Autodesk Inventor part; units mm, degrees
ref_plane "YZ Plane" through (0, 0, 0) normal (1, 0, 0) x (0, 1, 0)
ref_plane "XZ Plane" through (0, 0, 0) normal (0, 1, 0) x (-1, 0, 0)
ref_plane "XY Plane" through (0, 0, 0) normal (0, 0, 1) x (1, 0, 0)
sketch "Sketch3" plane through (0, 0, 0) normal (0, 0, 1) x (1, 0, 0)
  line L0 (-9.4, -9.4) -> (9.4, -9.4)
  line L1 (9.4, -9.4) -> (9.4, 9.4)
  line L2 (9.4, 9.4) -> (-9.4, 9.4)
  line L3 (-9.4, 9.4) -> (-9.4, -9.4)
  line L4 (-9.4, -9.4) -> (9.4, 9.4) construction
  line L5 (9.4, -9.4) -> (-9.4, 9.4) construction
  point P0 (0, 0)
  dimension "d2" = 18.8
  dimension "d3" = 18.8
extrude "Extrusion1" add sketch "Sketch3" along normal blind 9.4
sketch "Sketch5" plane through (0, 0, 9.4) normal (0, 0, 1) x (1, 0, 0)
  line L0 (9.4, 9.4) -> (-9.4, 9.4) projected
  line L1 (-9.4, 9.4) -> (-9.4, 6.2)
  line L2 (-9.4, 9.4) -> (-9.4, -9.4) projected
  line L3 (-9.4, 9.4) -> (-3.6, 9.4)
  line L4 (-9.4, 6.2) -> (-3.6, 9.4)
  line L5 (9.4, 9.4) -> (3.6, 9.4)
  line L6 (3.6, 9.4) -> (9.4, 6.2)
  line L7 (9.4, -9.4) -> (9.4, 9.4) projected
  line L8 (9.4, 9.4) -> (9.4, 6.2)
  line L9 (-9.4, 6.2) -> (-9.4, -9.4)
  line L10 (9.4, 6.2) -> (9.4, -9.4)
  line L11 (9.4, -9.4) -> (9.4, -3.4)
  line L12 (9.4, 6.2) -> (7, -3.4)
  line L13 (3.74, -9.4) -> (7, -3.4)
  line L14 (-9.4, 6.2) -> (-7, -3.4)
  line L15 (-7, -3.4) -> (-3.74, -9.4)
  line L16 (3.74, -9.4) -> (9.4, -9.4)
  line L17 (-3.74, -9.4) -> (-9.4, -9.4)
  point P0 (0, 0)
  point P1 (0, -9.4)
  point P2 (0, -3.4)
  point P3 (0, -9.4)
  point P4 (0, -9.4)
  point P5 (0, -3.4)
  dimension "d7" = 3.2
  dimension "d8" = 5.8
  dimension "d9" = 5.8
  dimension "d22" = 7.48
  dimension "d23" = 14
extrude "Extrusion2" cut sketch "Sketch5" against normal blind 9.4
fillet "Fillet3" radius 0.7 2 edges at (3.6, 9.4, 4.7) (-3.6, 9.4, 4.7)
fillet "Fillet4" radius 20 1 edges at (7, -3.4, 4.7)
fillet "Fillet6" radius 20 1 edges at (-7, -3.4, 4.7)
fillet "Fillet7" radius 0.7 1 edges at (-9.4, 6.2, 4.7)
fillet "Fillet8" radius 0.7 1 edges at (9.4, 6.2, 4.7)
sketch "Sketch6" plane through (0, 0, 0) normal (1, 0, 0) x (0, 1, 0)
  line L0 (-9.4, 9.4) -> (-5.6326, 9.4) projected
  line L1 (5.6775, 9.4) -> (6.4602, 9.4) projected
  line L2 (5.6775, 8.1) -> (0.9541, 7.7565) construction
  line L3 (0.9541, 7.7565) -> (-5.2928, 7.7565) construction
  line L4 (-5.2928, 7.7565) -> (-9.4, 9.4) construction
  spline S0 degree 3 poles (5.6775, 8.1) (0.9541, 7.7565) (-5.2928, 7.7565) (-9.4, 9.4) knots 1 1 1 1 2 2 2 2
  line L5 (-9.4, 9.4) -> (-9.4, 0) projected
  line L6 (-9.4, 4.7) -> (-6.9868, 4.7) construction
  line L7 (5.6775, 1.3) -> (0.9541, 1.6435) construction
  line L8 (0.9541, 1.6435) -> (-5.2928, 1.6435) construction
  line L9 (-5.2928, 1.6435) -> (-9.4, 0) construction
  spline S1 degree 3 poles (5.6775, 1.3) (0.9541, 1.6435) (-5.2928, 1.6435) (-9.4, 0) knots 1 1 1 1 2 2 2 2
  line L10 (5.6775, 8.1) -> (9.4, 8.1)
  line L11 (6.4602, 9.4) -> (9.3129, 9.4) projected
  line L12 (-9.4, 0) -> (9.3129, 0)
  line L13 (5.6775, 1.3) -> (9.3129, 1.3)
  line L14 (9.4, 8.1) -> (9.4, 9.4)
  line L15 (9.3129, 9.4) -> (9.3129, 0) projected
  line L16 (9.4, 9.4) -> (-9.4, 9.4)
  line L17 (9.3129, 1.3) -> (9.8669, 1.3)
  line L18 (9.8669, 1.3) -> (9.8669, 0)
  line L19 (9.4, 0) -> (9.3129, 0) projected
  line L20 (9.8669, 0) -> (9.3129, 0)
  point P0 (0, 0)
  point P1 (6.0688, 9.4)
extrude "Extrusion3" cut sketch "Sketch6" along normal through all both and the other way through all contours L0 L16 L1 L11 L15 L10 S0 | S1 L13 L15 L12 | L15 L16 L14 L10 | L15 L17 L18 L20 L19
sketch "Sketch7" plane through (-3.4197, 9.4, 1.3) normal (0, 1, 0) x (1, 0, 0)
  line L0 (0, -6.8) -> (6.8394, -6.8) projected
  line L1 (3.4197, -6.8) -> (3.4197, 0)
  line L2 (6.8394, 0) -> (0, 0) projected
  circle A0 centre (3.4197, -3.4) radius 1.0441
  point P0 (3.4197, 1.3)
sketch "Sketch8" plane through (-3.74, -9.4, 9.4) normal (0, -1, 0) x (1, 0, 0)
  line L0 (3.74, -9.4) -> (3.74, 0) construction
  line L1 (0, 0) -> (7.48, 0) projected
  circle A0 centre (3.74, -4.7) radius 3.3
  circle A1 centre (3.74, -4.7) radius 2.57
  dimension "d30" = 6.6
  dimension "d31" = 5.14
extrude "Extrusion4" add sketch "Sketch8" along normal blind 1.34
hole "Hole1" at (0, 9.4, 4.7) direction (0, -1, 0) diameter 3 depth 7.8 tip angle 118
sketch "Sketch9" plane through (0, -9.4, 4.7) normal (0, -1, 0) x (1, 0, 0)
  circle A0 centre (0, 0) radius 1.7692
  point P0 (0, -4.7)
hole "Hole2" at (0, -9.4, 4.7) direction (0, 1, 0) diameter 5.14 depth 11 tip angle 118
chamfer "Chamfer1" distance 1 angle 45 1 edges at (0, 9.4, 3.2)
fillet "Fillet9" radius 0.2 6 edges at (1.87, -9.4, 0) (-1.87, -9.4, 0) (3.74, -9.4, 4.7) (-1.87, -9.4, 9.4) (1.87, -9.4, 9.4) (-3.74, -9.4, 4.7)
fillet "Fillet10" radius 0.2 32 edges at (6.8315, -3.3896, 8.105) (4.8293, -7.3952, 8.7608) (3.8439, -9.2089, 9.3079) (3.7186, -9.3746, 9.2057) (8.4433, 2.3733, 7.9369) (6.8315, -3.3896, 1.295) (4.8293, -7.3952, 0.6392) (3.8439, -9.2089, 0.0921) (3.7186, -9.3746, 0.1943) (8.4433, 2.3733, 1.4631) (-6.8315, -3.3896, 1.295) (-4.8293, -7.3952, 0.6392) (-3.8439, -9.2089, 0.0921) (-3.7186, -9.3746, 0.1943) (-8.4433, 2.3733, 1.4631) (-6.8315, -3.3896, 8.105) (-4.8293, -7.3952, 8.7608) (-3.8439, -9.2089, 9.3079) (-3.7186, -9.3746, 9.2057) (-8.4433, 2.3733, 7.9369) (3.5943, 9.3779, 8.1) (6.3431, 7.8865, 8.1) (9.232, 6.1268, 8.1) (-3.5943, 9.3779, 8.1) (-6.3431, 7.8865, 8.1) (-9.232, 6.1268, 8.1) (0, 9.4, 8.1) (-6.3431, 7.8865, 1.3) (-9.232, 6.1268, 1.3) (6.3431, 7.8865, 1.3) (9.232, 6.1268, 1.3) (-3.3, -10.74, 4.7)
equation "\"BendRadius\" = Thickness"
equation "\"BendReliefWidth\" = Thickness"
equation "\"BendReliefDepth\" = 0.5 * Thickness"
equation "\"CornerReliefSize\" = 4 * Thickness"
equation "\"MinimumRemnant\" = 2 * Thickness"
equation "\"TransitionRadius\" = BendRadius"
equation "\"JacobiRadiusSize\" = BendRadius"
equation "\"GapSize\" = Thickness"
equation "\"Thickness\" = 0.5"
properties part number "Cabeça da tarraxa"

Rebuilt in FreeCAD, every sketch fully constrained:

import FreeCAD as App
import Part
import Sketcher
from FreeCAD import Vector


def edges_at(feature, points):
    """Names of the edges that pass closest to the given points."""
    edges = feature.Shape.Edges
    near = lambda p: min(range(len(edges)), key=lambda i: edges[i].distToShape(Part.Vertex(*p))[0])
    return sorted({f"Edge{near(p) + 1}" for p in points})


def add_polygon(sketch, points):
    """Adds a closed chain of lines whose ends are joined by coincident constraints."""
    first, n = sketch.GeometryCount, len(points)
    for a, b in zip(points, points[1:] + points[:1]):
        sketch.addGeometry(Part.LineSegment(App.Vector(*a, 0), App.Vector(*b, 0)), False)
    for i in range(n):
        sketch.addConstraint(Sketcher.Constraint("Coincident", first + i, 2, first + (i + 1) % n, 1))

doc = App.newDocument("Part")
body = doc.addObject("PartDesign::Body", "Body")

# Sketch on XY plane
sketch1 = body.newObject("Sketcher::SketchObject", "Sketch")
sketch1.AttachmentSupport = (doc.getObject("XY_Plane"), [""])
sketch1.MapMode = "FlatFace"
add_polygon(sketch1, [(-9, 9), (-9, -9), (9, -9), (9, 9)])  # lines 0-3
sketch1.addConstraint(Sketcher.Constraint("Vertical", 0))
sketch1.addConstraint(Sketcher.Constraint("Horizontal", 1))
sketch1.addConstraint(Sketcher.Constraint("Vertical", 2))
sketch1.addConstraint(Sketcher.Constraint("Horizontal", 3))
sketch1.addConstraint(Sketcher.Constraint("Symmetric", 0, 2, 2, 2, -1, 1))
sketch1.addConstraint(Sketcher.Constraint("Equal", 3, 0))
sketch1.addConstraint(Sketcher.Constraint("DistanceX", 1, 1, 1, 2, 18.8))
pad1 = body.newObject("PartDesign::Pad", "Pad")
pad1.Profile = sketch1
pad1.Length = 9.4

# Sketch on XY plane
sketch2 = body.newObject("Sketcher::SketchObject", "Sketch001")
sketch2.AttachmentSupport = (doc.getObject("XY_Plane"), [""])
sketch2.MapMode = "FlatFace"
sketch2.AttachmentOffset = App.Placement(Vector(0, 0, 9.4), App.Rotation())
add_polygon(sketch2, [(9.4, 6.2), (9.4, 9.4), (3.6, 9.4)])  # lines 0-2
add_polygon(sketch2, [(9.4, -9.4), (9.4, 6.2), (7, -3.4), (3.7, -9.4)])  # lines 3-6
add_polygon(sketch2, [(-7, -3.4), (-9.4, 6.2), (-9.4, -9.4), (-3.7, -9.4)])  # lines 7-10
add_polygon(sketch2, [(-9.4, 6.2), (-3.6, 9.4), (-9.4, 9.4)])  # lines 11-13
sketch2.addConstraint(Sketcher.Constraint("Vertical", 0))
sketch2.addConstraint(Sketcher.Constraint("Horizontal", 1))
sketch2.addConstraint(Sketcher.Constraint("Vertical", 3))
sketch2.addConstraint(Sketcher.Constraint("Horizontal", 6))
sketch2.addConstraint(Sketcher.Constraint("Vertical", 8))
sketch2.addConstraint(Sketcher.Constraint("Horizontal", 9))
sketch2.addConstraint(Sketcher.Constraint("Horizontal", 12))
sketch2.addConstraint(Sketcher.Constraint("Vertical", 13))
sketch2.addConstraint(Sketcher.Constraint("Coincident", 3, 2, 2, 2))
sketch2.addConstraint(Sketcher.Constraint("Coincident", 13, 2, 7, 2))
sketch2.addConstraint(Sketcher.Constraint("Symmetric", 0, 2, 8, 2, -1, 1))
sketch2.addConstraint(Sketcher.Constraint("Symmetric", 5, 2, 9, 2, -2))
sketch2.addConstraint(Sketcher.Constraint("Symmetric", 4, 2, 10, 2, -2))
sketch2.addConstraint(Sketcher.Constraint("Symmetric", 1, 2, 11, 2, -2))
sketch2.addConstraint(Sketcher.Constraint("Horizontal", 3, 2, 7, 2))
sketch2.addConstraint(Sketcher.Constraint("DistanceX", 1, 2, 1, 1, 5.8))
sketch2.addConstraint(Sketcher.Constraint("DistanceY", 0, 1, 0, 2, 3.2))
sketch2.addConstraint(Sketcher.Constraint("DistanceX", 10, 2, 4, 2, 14.0))
sketch2.addConstraint(Sketcher.Constraint("DistanceX", 9, 2, 5, 2, 7.48))
sketch2.addConstraint(Sketcher.Constraint("DistanceY", 3, 1, 3, 2, 15.6))
sketch2.addConstraint(Sketcher.Constraint("DistanceY", 5, 2, 4, 2, 6.0))
sketch2.addConstraint(Sketcher.Constraint("DistanceX", 7, 2, 1, 2, 13.0))
pocket1 = body.newObject("PartDesign::Pocket", "Pocket")
pocket1.Profile = sketch2
pocket1.Length = 9.4
doc.recompute()

fillet = body.newObject("PartDesign::Fillet", "Fillet")
fillet.Base = (pocket1, edges_at(pocket1, [(3.6, 9.4, 4.7), (-3.6, 9.4, 4.7)]))
fillet.Radius = 0.7
doc.recompute()

fillet2 = body.newObject("PartDesign::Fillet", "Fillet001")
fillet2.Base = (fillet, edges_at(fillet, [(7, -3.4, 4.7)]))
fillet2.Radius = 20
doc.recompute()

fillet3 = body.newObject("PartDesign::Fillet", "Fillet002")
fillet3.Base = (fillet2, edges_at(fillet2, [(-7, -3.4, 4.7)]))
fillet3.Radius = 20
doc.recompute()

fillet4 = body.newObject("PartDesign::Fillet", "Fillet003")
fillet4.Base = (fillet3, edges_at(fillet3, [(-9.4, 6.2, 4.7)]))
fillet4.Radius = 0.7
doc.recompute()

fillet5 = body.newObject("PartDesign::Fillet", "Fillet004")
fillet5.Base = (fillet4, edges_at(fillet4, [(9.4, 6.2, 4.7)]))
fillet5.Radius = 0.7

# Sketch on YZ plane
sketch3 = body.newObject("Sketcher::SketchObject", "Sketch002")
sketch3.AttachmentSupport = (doc.getObject("YZ_Plane"), [""])
sketch3.MapMode = "FlatFace"
sketch3.addGeometry(Part.BSplineCurve([Vector(5.6775, 8.1, 0), Vector(0.9541, 7.7565, 0), Vector(-5.2928, 7.7565, 0), Vector(-9.4, 9.4, 0)], [4, 4], [1, 2], False, 3, [1, 1, 1, 1], False), False)
sketch3.addGeometry(Part.LineSegment(Vector(5.6775, 8.1, 0), Vector(9.4, 8.1, 0)), False)
sketch3.addGeometry(Part.LineSegment(Vector(9.4, 8.1, 0), Vector(9.4, 9.4, 0)), False)
sketch3.addGeometry(Part.LineSegment(Vector(9.4, 9.4, 0), Vector(-9.4, 9.4, 0)), False)
sketch3.addGeometry(Part.BSplineCurve([Vector(5.6775, 1.3, 0), Vector(0.9541, 1.6435, 0), Vector(-5.2928, 1.6435, 0), Vector(-9.4, 0, 0)], [4, 4], [1, 2], False, 3, [1, 1, 1, 1], False), False)
sketch3.addGeometry(Part.LineSegment(Vector(-9.4, 0, 0), Vector(9.8669, 0, 0)), False)
sketch3.addGeometry(Part.LineSegment(Vector(9.8669, 0, 0), Vector(9.8669, 1.3, 0)), False)
sketch3.addGeometry(Part.LineSegment(Vector(9.8669, 1.3, 0), Vector(5.6775, 1.3, 0)), False)
sketch3.addConstraint(Sketcher.Constraint("Block", 0))
sketch3.addConstraint(Sketcher.Constraint("Block", 4))
sketch3.addConstraint(Sketcher.Constraint("Coincident", 0, 1, 1, 1))
sketch3.addConstraint(Sketcher.Constraint("Coincident", 1, 2, 2, 1))
sketch3.addConstraint(Sketcher.Constraint("Coincident", 2, 2, 3, 1))
sketch3.addConstraint(Sketcher.Constraint("Coincident", 3, 2, 0, 2))
sketch3.addConstraint(Sketcher.Constraint("Coincident", 4, 2, 5, 1))
sketch3.addConstraint(Sketcher.Constraint("Coincident", 5, 2, 6, 1))
sketch3.addConstraint(Sketcher.Constraint("Coincident", 6, 2, 7, 1))
sketch3.addConstraint(Sketcher.Constraint("Coincident", 7, 2, 4, 1))
sketch3.addConstraint(Sketcher.Constraint("Horizontal", 1))
sketch3.addConstraint(Sketcher.Constraint("Vertical", 2))
sketch3.addConstraint(Sketcher.Constraint("Horizontal", 3))
sketch3.addConstraint(Sketcher.Constraint("Horizontal", 5))
sketch3.addConstraint(Sketcher.Constraint("Vertical", 6))
sketch3.addConstraint(Sketcher.Constraint("Horizontal", 7))
sketch3.addConstraint(Sketcher.Constraint("DistanceX", 3, 2, 3, 1, 18.8))
sketch3.addConstraint(Sketcher.Constraint("DistanceX", 5, 1, 5, 2, 19.267))
pocket2 = body.newObject("PartDesign::Pocket", "Pocket001")
pocket2.Profile = sketch3
pocket2.Type = "ThroughAll"
pocket2.Midplane = True

# Sketch on XZ plane
sketch4 = body.newObject("Sketcher::SketchObject", "Sketch003")
sketch4.AttachmentSupport = (doc.getObject("XZ_Plane"), [""])
sketch4.MapMode = "FlatFace"
sketch4.AttachmentOffset = App.Placement(Vector(0, 0, 9.4), App.Rotation())
sketch4.addGeometry(Part.Circle(Vector(0, 4.7, 0), Vector(0, 0, 1), 3.3), False)
sketch4.addGeometry(Part.Circle(Vector(0, 4.7, 0), Vector(0, 0, 1), 2.6), False)
sketch4.addConstraint(Sketcher.Constraint("Coincident", 1, 3, 0, 3))
sketch4.addConstraint(Sketcher.Constraint("PointOnObject", 0, 3, -2))
sketch4.addConstraint(Sketcher.Constraint("Diameter", 0, 6.6))
sketch4.addConstraint(Sketcher.Constraint("Diameter", 1, 5.14))
sketch4.addConstraint(Sketcher.Constraint("DistanceY", -1, 1, 0, 3, 4.7))
pad2 = body.newObject("PartDesign::Pad", "Pad001")
pad2.Profile = sketch4
pad2.Length = 1.34

# Sketch on XZ plane
sketch5 = body.newObject("Sketcher::SketchObject", "Sketch004")
sketch5.AttachmentSupport = (doc.getObject("XZ_Plane"), [""])
sketch5.MapMode = "FlatFace"
sketch5.AttachmentOffset = App.Placement(Vector(0, 0, -9.4), App.Rotation())
sketch5.addGeometry(Part.Circle(Vector(0, 4.7, 0), Vector(0, 0, 1), 1.5), False)
sketch5.addConstraint(Sketcher.Constraint("PointOnObject", 0, 3, -2))
sketch5.addConstraint(Sketcher.Constraint("Diameter", 0, 3.0))
sketch5.addConstraint(Sketcher.Constraint("DistanceY", -1, 1, 0, 3, 4.7))
doc.recompute()
hole = body.newObject("PartDesign::Hole", "Hole")
hole.Profile = sketch5
hole.ThreadType = "None"
hole.Diameter = 3
hole.DepthType = "Dimension"
hole.Depth = 7.8
hole.DrillPoint = "Angled"
hole.DrillPointAngle = 118
hole.Reversed = True

# Sketch on XZ plane
sketch6 = body.newObject("Sketcher::SketchObject", "Sketch005")
sketch6.AttachmentSupport = (doc.getObject("XZ_Plane"), [""])
sketch6.MapMode = "FlatFace"
sketch6.AttachmentOffset = App.Placement(Vector(0, 0, 9.4), App.Rotation())
sketch6.addGeometry(Part.Circle(Vector(0, 4.7, 0), Vector(0, 0, 1), 2.6), False)
sketch6.addConstraint(Sketcher.Constraint("PointOnObject", 0, 3, -2))
sketch6.addConstraint(Sketcher.Constraint("Diameter", 0, 5.14))
sketch6.addConstraint(Sketcher.Constraint("DistanceY", -1, 1, 0, 3, 4.7))
doc.recompute()
hole2 = body.newObject("PartDesign::Hole", "Hole001")
hole2.Profile = sketch6
hole2.ThreadType = "None"
hole2.Diameter = 5.14
hole2.DepthType = "Dimension"
hole2.Depth = 11
hole2.DrillPoint = "Angled"
hole2.DrillPointAngle = 118
doc.recompute()

chamfer = body.newObject("PartDesign::Chamfer", "Chamfer")
chamfer.Base = (hole2, edges_at(hole2, [(0, 9.4, 3.2)]))
chamfer.Size = 1
doc.recompute()

fillet6 = body.newObject("PartDesign::Fillet", "Fillet005")
fillet6.Base = (chamfer, edges_at(chamfer, [
    (1.87, -9.4, 0),
    (-1.87, -9.4, 0),
    (3.74, -9.4, 4.7),
    (-1.87, -9.4, 9.4),
    (1.87, -9.4, 9.4),
    (-3.74, -9.4, 4.7),
]))
fillet6.Radius = 0.2
doc.recompute()

fillet7 = body.newObject("PartDesign::Fillet", "Fillet006")
fillet7.Base = (fillet6, edges_at(fillet6, [
    (6.832, -3.39, 8.105),
    (4.829, -7.395, 8.761),
    (3.844, -9.209, 9.308),
    (3.719, -9.375, 9.206),
    (8.443, 2.373, 7.937),
    (6.832, -3.39, 1.295),
    (4.829, -7.395, 0.639),
    (3.844, -9.209, 0.092),
    (3.719, -9.375, 0.194),
    (8.443, 2.373, 1.463),
    (-6.832, -3.39, 1.295),
    (-4.829, -7.395, 0.639),
    (-3.844, -9.209, 0.092),
    (-3.719, -9.375, 0.194),
    (-8.443, 2.373, 1.463),
    (-6.832, -3.39, 8.105),
    (-4.829, -7.395, 8.761),
    (-3.844, -9.209, 9.308),
    (-3.719, -9.375, 9.206),
    (-8.443, 2.373, 7.937),
    (3.594, 9.378, 8.1),
    (6.343, 7.886, 8.1),
    (9.232, 6.127, 8.1),
    (-3.594, 9.378, 8.1),
    (-6.343, 7.886, 8.1),
    (-9.232, 6.127, 8.1),
    (0, 9.4, 8.1),
    (-6.343, 7.886, 1.3),
    (-9.232, 6.127, 1.3),
    (6.343, 7.886, 1.3),
    (9.232, 6.127, 1.3),
    (-3.3, -10.74, 4.7),
]))
fillet7.Radius = 0.2

doc.recompute()
